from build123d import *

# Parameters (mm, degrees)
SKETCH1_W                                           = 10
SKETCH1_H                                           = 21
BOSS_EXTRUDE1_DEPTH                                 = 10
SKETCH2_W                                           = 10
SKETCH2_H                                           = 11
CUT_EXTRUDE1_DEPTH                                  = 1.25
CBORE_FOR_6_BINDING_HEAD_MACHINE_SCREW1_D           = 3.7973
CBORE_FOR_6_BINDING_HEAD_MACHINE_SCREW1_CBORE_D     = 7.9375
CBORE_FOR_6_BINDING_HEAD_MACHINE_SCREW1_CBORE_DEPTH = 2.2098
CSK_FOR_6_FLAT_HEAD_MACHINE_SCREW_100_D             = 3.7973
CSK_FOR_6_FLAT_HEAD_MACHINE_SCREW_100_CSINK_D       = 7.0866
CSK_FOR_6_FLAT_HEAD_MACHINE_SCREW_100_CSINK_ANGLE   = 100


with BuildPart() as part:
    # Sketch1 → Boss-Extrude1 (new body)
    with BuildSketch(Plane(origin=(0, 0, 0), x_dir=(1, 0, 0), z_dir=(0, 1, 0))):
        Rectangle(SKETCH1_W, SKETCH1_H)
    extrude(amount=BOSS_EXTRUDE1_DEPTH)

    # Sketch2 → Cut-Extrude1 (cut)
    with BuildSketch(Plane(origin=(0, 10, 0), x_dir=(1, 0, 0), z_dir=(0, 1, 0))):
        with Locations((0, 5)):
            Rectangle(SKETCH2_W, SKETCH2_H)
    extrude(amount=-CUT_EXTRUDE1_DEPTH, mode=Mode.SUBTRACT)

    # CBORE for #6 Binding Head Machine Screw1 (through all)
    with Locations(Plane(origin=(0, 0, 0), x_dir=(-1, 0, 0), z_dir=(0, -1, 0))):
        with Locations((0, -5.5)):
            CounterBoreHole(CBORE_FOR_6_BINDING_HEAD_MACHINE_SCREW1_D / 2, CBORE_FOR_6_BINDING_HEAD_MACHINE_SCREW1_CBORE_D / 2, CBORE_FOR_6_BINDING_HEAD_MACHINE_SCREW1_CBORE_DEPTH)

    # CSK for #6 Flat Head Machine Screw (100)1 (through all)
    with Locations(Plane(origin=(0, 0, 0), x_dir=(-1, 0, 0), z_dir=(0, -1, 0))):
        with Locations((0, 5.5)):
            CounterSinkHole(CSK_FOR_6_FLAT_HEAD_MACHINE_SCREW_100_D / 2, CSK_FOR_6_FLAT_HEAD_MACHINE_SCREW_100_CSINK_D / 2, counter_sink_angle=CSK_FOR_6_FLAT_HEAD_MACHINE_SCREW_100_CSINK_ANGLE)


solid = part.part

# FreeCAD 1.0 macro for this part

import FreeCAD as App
import Part
import Sketcher

V = App.Vector

doc = App.newDocument("Part")
body = doc.addObject("PartDesign::Body", "Body")

# Sketch on XZ plane
sketch1 = doc.addObject("Sketcher::SketchObject", "Sketch")
body.addObject(sketch1)
sketch1.AttachmentSupport = (doc.XZ_Plane, [""])
sketch1.MapMode = "FlatFace"
sketch1.addGeometry(Part.LineSegment(V(-5, -10, 0), V(-5, 10, 0)), False)
sketch1.addGeometry(Part.LineSegment(V(-5, 10, 0), V(5, 10, 0)), False)
sketch1.addGeometry(Part.LineSegment(V(5, 10, 0), V(5, -10, 0)), False)
sketch1.addGeometry(Part.LineSegment(V(5, -10, 0), V(-5, -10, 0)), False)
sketch1.addConstraint(Sketcher.Constraint("Coincident", 0, 2, 1, 1))
sketch1.addConstraint(Sketcher.Constraint("Coincident", 1, 2, 2, 1))
sketch1.addConstraint(Sketcher.Constraint("Coincident", 2, 2, 3, 1))
sketch1.addConstraint(Sketcher.Constraint("Coincident", 3, 2, 0, 1))
sketch1.addConstraint(Sketcher.Constraint("Vertical", 0))
sketch1.addConstraint(Sketcher.Constraint("Horizontal", 1))
sketch1.addConstraint(Sketcher.Constraint("Vertical", 2))
sketch1.addConstraint(Sketcher.Constraint("Horizontal", 3))
sketch1.addConstraint(Sketcher.Constraint("Symmetric", 0, 2, 2, 2, -1, 1))
sketch1.addConstraint(Sketcher.Constraint("DistanceX", 1, 1, 1, 2, 10.0))
sketch1.addConstraint(Sketcher.Constraint("DistanceY", 0, 1, 0, 2, 21.0))
pad1 = doc.addObject("PartDesign::Pad", "Pad")
body.addObject(pad1)
pad1.Profile = sketch1
pad1.Length = 10
pad1.Reversed = True

# Sketch on XZ plane
sketch2 = doc.addObject("Sketcher::SketchObject", "Sketch001")
body.addObject(sketch2)
sketch2.AttachmentSupport = (doc.XZ_Plane, [""])
sketch2.MapMode = "FlatFace"
sketch2.AttachmentOffset = App.Placement(V(0, 0, -10), App.Rotation())
sketch2.addGeometry(Part.LineSegment(V(-5, -10, 0), V(-5, 0, 0)), False)
sketch2.addGeometry(Part.LineSegment(V(-5, 0, 0), V(5, 0, 0)), False)
sketch2.addGeometry(Part.LineSegment(V(5, 0, 0), V(5, -10, 0)), False)
sketch2.addGeometry(Part.LineSegment(V(5, -10, 0), V(-5, -10, 0)), False)
sketch2.addConstraint(Sketcher.Constraint("Coincident", 0, 2, 1, 1))
sketch2.addConstraint(Sketcher.Constraint("Coincident", 1, 2, 2, 1))
sketch2.addConstraint(Sketcher.Constraint("Coincident", 2, 2, 3, 1))
sketch2.addConstraint(Sketcher.Constraint("Coincident", 3, 2, 0, 1))
sketch2.addConstraint(Sketcher.Constraint("Vertical", 0))
sketch2.addConstraint(Sketcher.Constraint("Horizontal", 1))
sketch2.addConstraint(Sketcher.Constraint("Vertical", 2))
sketch2.addConstraint(Sketcher.Constraint("Horizontal", 3))
sketch2.addConstraint(Sketcher.Constraint("DistanceX", 1, 1, 1, 2, 10.0))
sketch2.addConstraint(Sketcher.Constraint("DistanceY", 0, 1, 0, 2, 11.0))
sketch2.addConstraint(Sketcher.Constraint("DistanceX", 0, 2, -1, 1, 5.0))
sketch2.addConstraint(Sketcher.Constraint("DistanceY", -1, 1, 0, 2, 0.5))
pocket1 = doc.addObject("PartDesign::Pocket", "Pocket")
body.addObject(pocket1)
pocket1.Profile = sketch2
pocket1.Length = 1.25
pocket1.Reversed = True

# Sketch on XZ plane
sketch3 = doc.addObject("Sketcher::SketchObject", "Sketch002")
body.addObject(sketch3)
sketch3.AttachmentSupport = (doc.XZ_Plane, [""])
sketch3.MapMode = "FlatFace"
sketch3.addGeometry(Part.Circle(V(0, 5.5, 0), V(0, 0, 1), 1.9), False)
sketch3.addConstraint(Sketcher.Constraint("PointOnObject", 0, 3, -2))
sketch3.addConstraint(Sketcher.Constraint("Diameter", 0, 3.7973))
sketch3.addConstraint(Sketcher.Constraint("DistanceY", -1, 1, 0, 3, 5.5))
doc.recompute()
hole = doc.addObject("PartDesign::Hole", "Hole")
body.addObject(hole)
hole.Profile = sketch3
hole.ThreadType = "None"
hole.Diameter = 3.7973
hole.DepthType = "ThroughAll"
hole.HoleCutType = "Counterbore"
hole.HoleCutDiameter = 7.9375
hole.HoleCutDepth = 2.2098

# Sketch on XZ plane
sketch4 = doc.addObject("Sketcher::SketchObject", "Sketch003")
body.addObject(sketch4)
sketch4.AttachmentSupport = (doc.XZ_Plane, [""])
sketch4.MapMode = "FlatFace"
sketch4.addGeometry(Part.Circle(V(0, -5.5, 0), V(0, 0, 1), 1.9), False)
sketch4.addConstraint(Sketcher.Constraint("PointOnObject", 0, 3, -2))
sketch4.addConstraint(Sketcher.Constraint("Diameter", 0, 3.7973))
sketch4.addConstraint(Sketcher.Constraint("DistanceY", 0, 3, -1, 1, 5.5))
doc.recompute()
hole2 = doc.addObject("PartDesign::Hole", "Hole001")
body.addObject(hole2)
hole2.Profile = sketch4
hole2.ThreadType = "None"
hole2.Diameter = 3.7973
hole2.DepthType = "ThroughAll"
hole2.HoleCutType = "Countersink"
hole2.HoleCutDiameter = 7.0866
hole2.HoleCutCountersinkAngle = 100

doc.recompute()
